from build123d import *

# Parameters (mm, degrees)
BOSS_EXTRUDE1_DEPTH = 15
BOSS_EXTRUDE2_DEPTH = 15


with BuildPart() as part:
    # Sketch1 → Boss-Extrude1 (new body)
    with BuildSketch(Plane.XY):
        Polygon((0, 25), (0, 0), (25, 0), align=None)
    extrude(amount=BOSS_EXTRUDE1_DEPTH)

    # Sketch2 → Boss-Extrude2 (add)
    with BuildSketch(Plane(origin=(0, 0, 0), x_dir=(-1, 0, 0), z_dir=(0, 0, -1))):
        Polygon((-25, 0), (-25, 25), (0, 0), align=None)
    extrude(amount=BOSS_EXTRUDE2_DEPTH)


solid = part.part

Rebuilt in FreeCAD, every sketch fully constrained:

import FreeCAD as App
import Part
import Sketcher
from FreeCAD import Vector

doc = App.newDocument("Part")
body = doc.addObject("PartDesign::Body", "Body")

# Sketch on XY plane
sketch1 = doc.addObject("Sketcher::SketchObject", "Sketch")
body.addObject(sketch1)
sketch1.AttachmentSupport = (doc.XY_Plane, [""])
sketch1.MapMode = "FlatFace"
sketch1.addGeometry([
    Part.LineSegment(Vector(0, 25, 0), Vector(0, 0, 0)),
    Part.LineSegment(Vector(0, 0, 0), Vector(25, 0, 0)),
    Part.LineSegment(Vector(25, 0, 0), Vector(0, 25, 0)),
], False)
sketch1.addConstraint([
    Sketcher.Constraint("Coincident", 0, 2, 1, 1),
    Sketcher.Constraint("Coincident", 1, 2, 2, 1),
    Sketcher.Constraint("Coincident", 2, 2, 0, 1),
    Sketcher.Constraint("Vertical", 0),
    Sketcher.Constraint("Horizontal", 1),
    Sketcher.Constraint("Coincident", 0, 2, -1, 1),
    Sketcher.Constraint("Equal", 1, 0),
    Sketcher.Constraint("DistanceX", 1, 1, 1, 2, 25.0),
])
pad1 = doc.addObject("PartDesign::Pad", "Pad")
body.addObject(pad1)
pad1.Profile = sketch1
pad1.Length = 15

# Sketch on XY plane
sketch2 = doc.addObject("Sketcher::SketchObject", "Sketch001")
body.addObject(sketch2)
sketch2.AttachmentSupport = (doc.XY_Plane, [""])
sketch2.MapMode = "FlatFace"
sketch2.addGeometry([
    Part.LineSegment(Vector(25, 25, 0), Vector(25, 0, 0)),
    Part.LineSegment(Vector(25, 0, 0), Vector(0, 0, 0)),
    Part.LineSegment(Vector(0, 0, 0), Vector(25, 25, 0)),
], False)
sketch2.addConstraint([
    Sketcher.Constraint("Coincident", 0, 2, 1, 1),
    Sketcher.Constraint("Coincident", 1, 2, 2, 1),
    Sketcher.Constraint("Coincident", 2, 2, 0, 1),
    Sketcher.Constraint("Vertical", 0),
    Sketcher.Constraint("Horizontal", 1),
    Sketcher.Constraint("Coincident", 1, 2, -1, 1),
    Sketcher.Constraint("Equal", 1, 0),
    Sketcher.Constraint("DistanceX", 1, 2, 1, 1, 25.0),
])
pad2 = doc.addObject("PartDesign::Pad", "Pad001")
body.addObject(pad2)
pad2.Profile = sketch2
pad2.Length = 15
pad2.Reversed = True

doc.recompute()
